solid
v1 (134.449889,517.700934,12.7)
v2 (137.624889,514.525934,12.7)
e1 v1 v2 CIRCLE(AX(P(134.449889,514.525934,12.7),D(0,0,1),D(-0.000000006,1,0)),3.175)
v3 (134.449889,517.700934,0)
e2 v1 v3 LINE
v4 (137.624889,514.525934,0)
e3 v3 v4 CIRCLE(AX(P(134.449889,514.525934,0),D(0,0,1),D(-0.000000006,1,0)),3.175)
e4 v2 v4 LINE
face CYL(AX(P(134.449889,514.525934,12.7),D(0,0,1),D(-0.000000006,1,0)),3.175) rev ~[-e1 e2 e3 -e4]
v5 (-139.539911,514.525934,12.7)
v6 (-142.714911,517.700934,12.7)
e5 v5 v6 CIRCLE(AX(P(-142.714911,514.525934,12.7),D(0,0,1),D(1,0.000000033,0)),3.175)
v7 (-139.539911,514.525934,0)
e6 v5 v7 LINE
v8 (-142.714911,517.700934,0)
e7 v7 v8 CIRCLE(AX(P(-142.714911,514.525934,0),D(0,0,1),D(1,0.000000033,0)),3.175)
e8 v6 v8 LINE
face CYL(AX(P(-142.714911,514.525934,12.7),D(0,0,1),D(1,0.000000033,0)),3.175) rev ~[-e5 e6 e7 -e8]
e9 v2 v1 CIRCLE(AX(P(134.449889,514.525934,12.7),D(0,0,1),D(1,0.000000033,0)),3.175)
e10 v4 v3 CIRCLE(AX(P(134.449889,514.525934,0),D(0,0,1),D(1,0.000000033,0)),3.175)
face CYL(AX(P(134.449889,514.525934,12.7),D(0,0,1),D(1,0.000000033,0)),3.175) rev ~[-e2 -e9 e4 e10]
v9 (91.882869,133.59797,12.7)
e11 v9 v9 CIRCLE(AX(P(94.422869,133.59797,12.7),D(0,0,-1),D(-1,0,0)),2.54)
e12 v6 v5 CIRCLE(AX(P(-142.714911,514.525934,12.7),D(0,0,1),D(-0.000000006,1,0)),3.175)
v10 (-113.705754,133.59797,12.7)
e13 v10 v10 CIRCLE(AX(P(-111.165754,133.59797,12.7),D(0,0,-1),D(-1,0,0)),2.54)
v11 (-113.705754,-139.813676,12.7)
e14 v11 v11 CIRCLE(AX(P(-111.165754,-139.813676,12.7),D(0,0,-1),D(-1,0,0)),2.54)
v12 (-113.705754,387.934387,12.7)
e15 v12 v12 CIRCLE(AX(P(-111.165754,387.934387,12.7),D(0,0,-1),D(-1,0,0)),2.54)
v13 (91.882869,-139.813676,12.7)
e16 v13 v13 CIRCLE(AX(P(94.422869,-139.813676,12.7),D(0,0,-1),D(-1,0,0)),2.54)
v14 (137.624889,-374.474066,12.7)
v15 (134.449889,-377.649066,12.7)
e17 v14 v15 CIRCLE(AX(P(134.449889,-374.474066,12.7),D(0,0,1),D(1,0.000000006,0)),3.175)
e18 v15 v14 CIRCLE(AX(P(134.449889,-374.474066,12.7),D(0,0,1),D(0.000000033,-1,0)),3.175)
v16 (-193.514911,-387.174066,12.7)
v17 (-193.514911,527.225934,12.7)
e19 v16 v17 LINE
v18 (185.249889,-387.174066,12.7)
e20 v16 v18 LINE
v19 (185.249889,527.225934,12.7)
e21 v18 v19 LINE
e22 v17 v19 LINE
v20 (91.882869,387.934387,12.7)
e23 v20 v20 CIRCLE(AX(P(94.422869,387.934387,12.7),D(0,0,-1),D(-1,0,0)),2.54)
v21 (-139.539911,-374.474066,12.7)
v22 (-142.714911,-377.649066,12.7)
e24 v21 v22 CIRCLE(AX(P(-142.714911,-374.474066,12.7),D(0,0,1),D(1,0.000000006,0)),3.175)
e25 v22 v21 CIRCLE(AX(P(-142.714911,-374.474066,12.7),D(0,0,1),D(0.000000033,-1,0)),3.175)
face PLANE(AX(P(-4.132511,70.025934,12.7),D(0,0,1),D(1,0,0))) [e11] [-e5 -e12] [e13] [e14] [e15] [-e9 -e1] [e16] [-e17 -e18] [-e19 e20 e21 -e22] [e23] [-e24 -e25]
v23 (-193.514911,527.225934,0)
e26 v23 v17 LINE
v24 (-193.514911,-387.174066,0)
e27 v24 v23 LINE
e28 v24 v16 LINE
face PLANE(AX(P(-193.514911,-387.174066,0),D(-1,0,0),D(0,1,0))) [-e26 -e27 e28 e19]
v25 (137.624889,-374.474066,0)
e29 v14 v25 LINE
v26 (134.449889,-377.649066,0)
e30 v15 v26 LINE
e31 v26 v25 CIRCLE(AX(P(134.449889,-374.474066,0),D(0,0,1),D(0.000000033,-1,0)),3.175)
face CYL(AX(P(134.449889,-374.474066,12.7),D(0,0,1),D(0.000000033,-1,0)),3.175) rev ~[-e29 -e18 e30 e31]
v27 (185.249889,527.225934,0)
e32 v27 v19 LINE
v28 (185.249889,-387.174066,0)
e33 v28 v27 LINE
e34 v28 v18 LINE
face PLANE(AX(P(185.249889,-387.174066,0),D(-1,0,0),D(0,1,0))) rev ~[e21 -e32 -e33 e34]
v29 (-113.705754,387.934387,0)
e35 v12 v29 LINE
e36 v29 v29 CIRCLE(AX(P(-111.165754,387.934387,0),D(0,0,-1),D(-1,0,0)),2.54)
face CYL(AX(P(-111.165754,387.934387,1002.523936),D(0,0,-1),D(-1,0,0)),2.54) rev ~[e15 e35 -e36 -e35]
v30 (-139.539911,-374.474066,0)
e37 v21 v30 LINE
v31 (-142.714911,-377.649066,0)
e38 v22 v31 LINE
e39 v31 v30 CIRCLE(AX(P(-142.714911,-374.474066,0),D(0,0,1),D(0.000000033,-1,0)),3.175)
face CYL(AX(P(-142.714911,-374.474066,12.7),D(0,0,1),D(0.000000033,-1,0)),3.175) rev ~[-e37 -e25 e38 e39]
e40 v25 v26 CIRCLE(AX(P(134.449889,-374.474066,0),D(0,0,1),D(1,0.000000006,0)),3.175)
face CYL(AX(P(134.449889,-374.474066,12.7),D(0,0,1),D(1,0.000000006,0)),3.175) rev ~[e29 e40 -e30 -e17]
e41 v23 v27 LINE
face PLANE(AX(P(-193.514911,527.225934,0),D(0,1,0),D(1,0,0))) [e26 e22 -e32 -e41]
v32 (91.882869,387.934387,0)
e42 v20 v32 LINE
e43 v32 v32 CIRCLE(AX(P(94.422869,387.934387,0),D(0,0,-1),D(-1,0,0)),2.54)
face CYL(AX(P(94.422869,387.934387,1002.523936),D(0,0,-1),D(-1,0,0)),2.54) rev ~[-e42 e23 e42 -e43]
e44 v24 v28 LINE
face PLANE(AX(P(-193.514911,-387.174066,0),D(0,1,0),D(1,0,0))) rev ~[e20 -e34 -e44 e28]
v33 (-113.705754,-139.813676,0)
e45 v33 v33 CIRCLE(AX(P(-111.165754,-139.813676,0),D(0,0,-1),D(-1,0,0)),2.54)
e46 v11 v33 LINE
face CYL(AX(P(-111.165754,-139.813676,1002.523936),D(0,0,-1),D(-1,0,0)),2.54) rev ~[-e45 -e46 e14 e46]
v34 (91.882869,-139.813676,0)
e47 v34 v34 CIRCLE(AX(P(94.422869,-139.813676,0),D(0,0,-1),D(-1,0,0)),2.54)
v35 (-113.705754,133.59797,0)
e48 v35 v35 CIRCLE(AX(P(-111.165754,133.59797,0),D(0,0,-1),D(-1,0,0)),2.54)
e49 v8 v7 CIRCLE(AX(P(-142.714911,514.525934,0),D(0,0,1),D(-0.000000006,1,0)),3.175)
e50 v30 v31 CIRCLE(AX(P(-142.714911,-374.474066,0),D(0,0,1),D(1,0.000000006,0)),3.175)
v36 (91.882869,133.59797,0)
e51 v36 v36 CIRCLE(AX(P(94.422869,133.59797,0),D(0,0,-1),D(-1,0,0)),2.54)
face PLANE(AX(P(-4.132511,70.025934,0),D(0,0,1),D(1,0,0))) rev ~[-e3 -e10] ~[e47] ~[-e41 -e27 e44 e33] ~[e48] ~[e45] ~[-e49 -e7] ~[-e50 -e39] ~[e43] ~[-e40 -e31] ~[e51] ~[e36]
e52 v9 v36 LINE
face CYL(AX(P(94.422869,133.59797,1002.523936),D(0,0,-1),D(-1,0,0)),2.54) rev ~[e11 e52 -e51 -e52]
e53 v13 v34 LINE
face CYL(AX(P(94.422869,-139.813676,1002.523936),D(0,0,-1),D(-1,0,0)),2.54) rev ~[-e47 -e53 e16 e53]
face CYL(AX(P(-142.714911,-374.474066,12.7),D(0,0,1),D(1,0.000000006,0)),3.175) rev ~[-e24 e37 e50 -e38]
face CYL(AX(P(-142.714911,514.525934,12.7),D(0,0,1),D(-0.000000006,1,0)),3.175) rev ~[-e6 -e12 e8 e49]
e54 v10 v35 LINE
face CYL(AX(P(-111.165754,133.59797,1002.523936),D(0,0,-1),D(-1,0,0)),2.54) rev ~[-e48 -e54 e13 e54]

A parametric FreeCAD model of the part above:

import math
import FreeCAD as App
import Part
import Sketcher
from FreeCAD import Vector
Q = App.Units.Quantity


def add_polygon(sketch, points):
    """Adds a closed chain of lines whose ends are joined by coincident constraints."""
    first, n = sketch.GeometryCount, len(points)
    for a, b in zip(points, points[1:] + points[:1]):
        sketch.addGeometry(Part.LineSegment(App.Vector(*a, 0), App.Vector(*b, 0)), False)
    for i in range(n):
        sketch.addConstraint(Sketcher.Constraint("Coincident", first + i, 2, first + (i + 1) % n, 1))

doc = App.newDocument("Part")
body = doc.addObject("PartDesign::Body", "Body")

# Sketch on XY plane
sketch1 = body.newObject("Sketcher::SketchObject", "Sketch")
sketch1.AttachmentSupport = (doc.getObject("XY_Plane"), [""])
sketch1.MapMode = "FlatFace"
add_polygon(sketch1, [(-194, 527), (-194, -387), (185, -387), (185, 527)])  # lines 0-3
sketch1.addConstraint([
    Sketcher.Constraint("Vertical", 0),
    Sketcher.Constraint("Horizontal", 1),
    Sketcher.Constraint("Vertical", 2),
    Sketcher.Constraint("Horizontal", 3),
    Sketcher.Constraint("DistanceY", 0, 2, 0, 1, Q("36 in")),
    Sketcher.Constraint("DistanceX", 1, 1, 1, 2, Q("14.912 in")),
    Sketcher.Constraint("DistanceX", 0, 2, -1, 1, 193.514911),
    Sketcher.Constraint("DistanceY", 0, 2, -1, 1, 387.174066),
])
pad1 = body.newObject("PartDesign::Pad", "Pad")
pad1.Profile = sketch1
pad1.Length = Q("0.5 in")

# Sketch on XY plane
sketch2 = body.newObject("Sketcher::SketchObject", "Sketch001")
sketch2.AttachmentSupport = (doc.getObject("XY_Plane"), [""])
sketch2.MapMode = "FlatFace"
sketch2.AttachmentOffset = App.Placement(Vector(0, 0, 0.5 * 25.4), App.Rotation())
sketch2.addGeometry([
    Part.ArcOfCircle(Part.Circle(Vector(-142.7, 514.5, 0), Vector(0, 0, 1), 3.2), math.radians(90), math.radians(360)),  # 0
    Part.ArcOfCircle(Part.Circle(Vector(-142.7, 514.5, 0), Vector(0, 0, 1), 3.2), math.radians(0), math.radians(90)),  # 1
    Part.ArcOfCircle(Part.Circle(Vector(134.4, 514.5, 0), Vector(0, 0, 1), 3.2), math.radians(90), math.radians(360)),  # 2
    Part.ArcOfCircle(Part.Circle(Vector(134.4, 514.5, 0), Vector(0, 0, 1), 3.2), math.radians(0), math.radians(90)),  # 3
    Part.ArcOfCircle(Part.Circle(Vector(-142.7, -374.5, 0), Vector(0, 0, 1), 3.2), math.radians(-90), math.radians(0)),  # 4
    Part.ArcOfCircle(Part.Circle(Vector(-142.7, -374.5, 0), Vector(0, 0, 1), 3.2), math.radians(0), math.radians(270)),  # 5
    Part.ArcOfCircle(Part.Circle(Vector(134.4, -374.5, 0), Vector(0, 0, 1), 3.2), math.radians(-90), math.radians(0)),  # 6
    Part.ArcOfCircle(Part.Circle(Vector(134.4, -374.5, 0), Vector(0, 0, 1), 3.2), math.radians(0), math.radians(270)),  # 7
], False)
sketch2.addConstraint([
    Sketcher.Constraint("Tangent", 0, 1, 1, 2),
    Sketcher.Constraint("Coincident", 1, 1, 0, 2),
    Sketcher.Constraint("Tangent", 2, 1, 3, 2),
    Sketcher.Constraint("Coincident", 3, 1, 2, 2),
    Sketcher.Constraint("Tangent", 4, 1, 5, 2),
    Sketcher.Constraint("Coincident", 5, 1, 4, 2),
    Sketcher.Constraint("Tangent", 6, 1, 7, 2),
    Sketcher.Constraint("Coincident", 7, 1, 6, 2),
    Sketcher.Constraint("Equal", 1, 2),
    Sketcher.Constraint("Equal", 3, 4),
    Sketcher.Constraint("Equal", 5, 6),
    Sketcher.Constraint("Horizontal", 1, 3, 2, 3),
    Sketcher.Constraint("Horizontal", 5, 3, 6, 3),
    Sketcher.Constraint("Horizontal", 3, 3, 1, 1),
    Sketcher.Constraint("Horizontal", 1, 1, 3, 1),
    Sketcher.Constraint("Horizontal", 7, 3, 5, 1),
    Sketcher.Constraint("Horizontal", 5, 1, 7, 1),
    Sketcher.Constraint("Vertical", 1, 3, 4, 3),
    Sketcher.Constraint("Vertical", 3, 3, 6, 3),
    Sketcher.Constraint("Vertical", 5, 3, 0, 1),
    Sketcher.Constraint("Vertical", 7, 3, 2, 1),
    Sketcher.Constraint("Vertical", 0, 1, 4, 1),
    Sketcher.Constraint("Vertical", 2, 1, 6, 1),
    Sketcher.Constraint("Radius", 0, Q("0.125 in")),
    Sketcher.Constraint("DistanceY", 4, 3, 1, 3, Q("35 in")),
    Sketcher.Constraint("DistanceX", 0, 3, 2, 3, Q("10.912 in")),
    Sketcher.Constraint("DistanceX", 0, 3, -1, 1, 142.714911),
    Sketcher.Constraint("DistanceY", -1, 1, 0, 3, 514.525934),
])
pocket1 = body.newObject("PartDesign::Pocket", "Pocket")
pocket1.Profile = sketch2
pocket1.Type = "ThroughAll"

# Sketch on XY plane
sketch3 = body.newObject("Sketcher::SketchObject", "Sketch002")
sketch3.AttachmentSupport = (doc.getObject("XY_Plane"), [""])
sketch3.MapMode = "FlatFace"
sketch3.AttachmentOffset = App.Placement(Vector(0, 0, 0.5 * 25.4), App.Rotation())
sketch3.addGeometry([
    Part.Circle(Vector(-111.2, 387.9, 0), Vector(0, 0, 1), 2.5),  # 0
    Part.Circle(Vector(94.4, 387.9, 0), Vector(0, 0, 1), 2.5),  # 1
    Part.Circle(Vector(94.4, 133.6, 0), Vector(0, 0, 1), 2.5),  # 2
    Part.Circle(Vector(-111.2, 133.6, 0), Vector(0, 0, 1), 2.5),  # 3
    Part.Circle(Vector(-111.2, -139.8, 0), Vector(0, 0, 1), 2.5),  # 4
    Part.Circle(Vector(94.4, -139.8, 0), Vector(0, 0, 1), 2.5),  # 5
], False)
sketch3.addConstraint([
    Sketcher.Constraint("Equal", 0, 1),
    Sketcher.Constraint("Equal", 1, 2),
    Sketcher.Constraint("Equal", 2, 3),
    Sketcher.Constraint("Equal", 3, 4),
    Sketcher.Constraint("Equal", 4, 5),
    Sketcher.Constraint("Horizontal", 0, 3, 1, 3),
    Sketcher.Constraint("Horizontal", 2, 3, 3, 3),
    Sketcher.Constraint("Horizontal", 4, 3, 5, 3),
    Sketcher.Constraint("Vertical", 1, 3, 2, 3),
    Sketcher.Constraint("Vertical", 0, 3, 3, 3),
    Sketcher.Constraint("Vertical", 3, 3, 4, 3),
    Sketcher.Constraint("Vertical", 2, 3, 5, 3),
    Sketcher.Constraint("Diameter", 0, Q("0.2 in")),
    Sketcher.Constraint("DistanceX", -1, 1, 1, 3, 94.422869),
    Sketcher.Constraint("DistanceY", -1, 1, 2, 3, 133.59797),
    Sketcher.Constraint("DistanceX", 0, 3, -1, 1, 111.165754),
    Sketcher.Constraint("DistanceY", -1, 1, 0, 3, 387.934387),
    Sketcher.Constraint("DistanceY", 4, 3, -1, 1, 139.813676),
])
doc.recompute()
hole = body.newObject("PartDesign::Hole", "Hole")
hole.Profile = sketch3
hole.ThreadType = "None"
hole.Diameter = Q("0.2 in")
hole.DepthType = "ThroughAll"

doc.recompute()
